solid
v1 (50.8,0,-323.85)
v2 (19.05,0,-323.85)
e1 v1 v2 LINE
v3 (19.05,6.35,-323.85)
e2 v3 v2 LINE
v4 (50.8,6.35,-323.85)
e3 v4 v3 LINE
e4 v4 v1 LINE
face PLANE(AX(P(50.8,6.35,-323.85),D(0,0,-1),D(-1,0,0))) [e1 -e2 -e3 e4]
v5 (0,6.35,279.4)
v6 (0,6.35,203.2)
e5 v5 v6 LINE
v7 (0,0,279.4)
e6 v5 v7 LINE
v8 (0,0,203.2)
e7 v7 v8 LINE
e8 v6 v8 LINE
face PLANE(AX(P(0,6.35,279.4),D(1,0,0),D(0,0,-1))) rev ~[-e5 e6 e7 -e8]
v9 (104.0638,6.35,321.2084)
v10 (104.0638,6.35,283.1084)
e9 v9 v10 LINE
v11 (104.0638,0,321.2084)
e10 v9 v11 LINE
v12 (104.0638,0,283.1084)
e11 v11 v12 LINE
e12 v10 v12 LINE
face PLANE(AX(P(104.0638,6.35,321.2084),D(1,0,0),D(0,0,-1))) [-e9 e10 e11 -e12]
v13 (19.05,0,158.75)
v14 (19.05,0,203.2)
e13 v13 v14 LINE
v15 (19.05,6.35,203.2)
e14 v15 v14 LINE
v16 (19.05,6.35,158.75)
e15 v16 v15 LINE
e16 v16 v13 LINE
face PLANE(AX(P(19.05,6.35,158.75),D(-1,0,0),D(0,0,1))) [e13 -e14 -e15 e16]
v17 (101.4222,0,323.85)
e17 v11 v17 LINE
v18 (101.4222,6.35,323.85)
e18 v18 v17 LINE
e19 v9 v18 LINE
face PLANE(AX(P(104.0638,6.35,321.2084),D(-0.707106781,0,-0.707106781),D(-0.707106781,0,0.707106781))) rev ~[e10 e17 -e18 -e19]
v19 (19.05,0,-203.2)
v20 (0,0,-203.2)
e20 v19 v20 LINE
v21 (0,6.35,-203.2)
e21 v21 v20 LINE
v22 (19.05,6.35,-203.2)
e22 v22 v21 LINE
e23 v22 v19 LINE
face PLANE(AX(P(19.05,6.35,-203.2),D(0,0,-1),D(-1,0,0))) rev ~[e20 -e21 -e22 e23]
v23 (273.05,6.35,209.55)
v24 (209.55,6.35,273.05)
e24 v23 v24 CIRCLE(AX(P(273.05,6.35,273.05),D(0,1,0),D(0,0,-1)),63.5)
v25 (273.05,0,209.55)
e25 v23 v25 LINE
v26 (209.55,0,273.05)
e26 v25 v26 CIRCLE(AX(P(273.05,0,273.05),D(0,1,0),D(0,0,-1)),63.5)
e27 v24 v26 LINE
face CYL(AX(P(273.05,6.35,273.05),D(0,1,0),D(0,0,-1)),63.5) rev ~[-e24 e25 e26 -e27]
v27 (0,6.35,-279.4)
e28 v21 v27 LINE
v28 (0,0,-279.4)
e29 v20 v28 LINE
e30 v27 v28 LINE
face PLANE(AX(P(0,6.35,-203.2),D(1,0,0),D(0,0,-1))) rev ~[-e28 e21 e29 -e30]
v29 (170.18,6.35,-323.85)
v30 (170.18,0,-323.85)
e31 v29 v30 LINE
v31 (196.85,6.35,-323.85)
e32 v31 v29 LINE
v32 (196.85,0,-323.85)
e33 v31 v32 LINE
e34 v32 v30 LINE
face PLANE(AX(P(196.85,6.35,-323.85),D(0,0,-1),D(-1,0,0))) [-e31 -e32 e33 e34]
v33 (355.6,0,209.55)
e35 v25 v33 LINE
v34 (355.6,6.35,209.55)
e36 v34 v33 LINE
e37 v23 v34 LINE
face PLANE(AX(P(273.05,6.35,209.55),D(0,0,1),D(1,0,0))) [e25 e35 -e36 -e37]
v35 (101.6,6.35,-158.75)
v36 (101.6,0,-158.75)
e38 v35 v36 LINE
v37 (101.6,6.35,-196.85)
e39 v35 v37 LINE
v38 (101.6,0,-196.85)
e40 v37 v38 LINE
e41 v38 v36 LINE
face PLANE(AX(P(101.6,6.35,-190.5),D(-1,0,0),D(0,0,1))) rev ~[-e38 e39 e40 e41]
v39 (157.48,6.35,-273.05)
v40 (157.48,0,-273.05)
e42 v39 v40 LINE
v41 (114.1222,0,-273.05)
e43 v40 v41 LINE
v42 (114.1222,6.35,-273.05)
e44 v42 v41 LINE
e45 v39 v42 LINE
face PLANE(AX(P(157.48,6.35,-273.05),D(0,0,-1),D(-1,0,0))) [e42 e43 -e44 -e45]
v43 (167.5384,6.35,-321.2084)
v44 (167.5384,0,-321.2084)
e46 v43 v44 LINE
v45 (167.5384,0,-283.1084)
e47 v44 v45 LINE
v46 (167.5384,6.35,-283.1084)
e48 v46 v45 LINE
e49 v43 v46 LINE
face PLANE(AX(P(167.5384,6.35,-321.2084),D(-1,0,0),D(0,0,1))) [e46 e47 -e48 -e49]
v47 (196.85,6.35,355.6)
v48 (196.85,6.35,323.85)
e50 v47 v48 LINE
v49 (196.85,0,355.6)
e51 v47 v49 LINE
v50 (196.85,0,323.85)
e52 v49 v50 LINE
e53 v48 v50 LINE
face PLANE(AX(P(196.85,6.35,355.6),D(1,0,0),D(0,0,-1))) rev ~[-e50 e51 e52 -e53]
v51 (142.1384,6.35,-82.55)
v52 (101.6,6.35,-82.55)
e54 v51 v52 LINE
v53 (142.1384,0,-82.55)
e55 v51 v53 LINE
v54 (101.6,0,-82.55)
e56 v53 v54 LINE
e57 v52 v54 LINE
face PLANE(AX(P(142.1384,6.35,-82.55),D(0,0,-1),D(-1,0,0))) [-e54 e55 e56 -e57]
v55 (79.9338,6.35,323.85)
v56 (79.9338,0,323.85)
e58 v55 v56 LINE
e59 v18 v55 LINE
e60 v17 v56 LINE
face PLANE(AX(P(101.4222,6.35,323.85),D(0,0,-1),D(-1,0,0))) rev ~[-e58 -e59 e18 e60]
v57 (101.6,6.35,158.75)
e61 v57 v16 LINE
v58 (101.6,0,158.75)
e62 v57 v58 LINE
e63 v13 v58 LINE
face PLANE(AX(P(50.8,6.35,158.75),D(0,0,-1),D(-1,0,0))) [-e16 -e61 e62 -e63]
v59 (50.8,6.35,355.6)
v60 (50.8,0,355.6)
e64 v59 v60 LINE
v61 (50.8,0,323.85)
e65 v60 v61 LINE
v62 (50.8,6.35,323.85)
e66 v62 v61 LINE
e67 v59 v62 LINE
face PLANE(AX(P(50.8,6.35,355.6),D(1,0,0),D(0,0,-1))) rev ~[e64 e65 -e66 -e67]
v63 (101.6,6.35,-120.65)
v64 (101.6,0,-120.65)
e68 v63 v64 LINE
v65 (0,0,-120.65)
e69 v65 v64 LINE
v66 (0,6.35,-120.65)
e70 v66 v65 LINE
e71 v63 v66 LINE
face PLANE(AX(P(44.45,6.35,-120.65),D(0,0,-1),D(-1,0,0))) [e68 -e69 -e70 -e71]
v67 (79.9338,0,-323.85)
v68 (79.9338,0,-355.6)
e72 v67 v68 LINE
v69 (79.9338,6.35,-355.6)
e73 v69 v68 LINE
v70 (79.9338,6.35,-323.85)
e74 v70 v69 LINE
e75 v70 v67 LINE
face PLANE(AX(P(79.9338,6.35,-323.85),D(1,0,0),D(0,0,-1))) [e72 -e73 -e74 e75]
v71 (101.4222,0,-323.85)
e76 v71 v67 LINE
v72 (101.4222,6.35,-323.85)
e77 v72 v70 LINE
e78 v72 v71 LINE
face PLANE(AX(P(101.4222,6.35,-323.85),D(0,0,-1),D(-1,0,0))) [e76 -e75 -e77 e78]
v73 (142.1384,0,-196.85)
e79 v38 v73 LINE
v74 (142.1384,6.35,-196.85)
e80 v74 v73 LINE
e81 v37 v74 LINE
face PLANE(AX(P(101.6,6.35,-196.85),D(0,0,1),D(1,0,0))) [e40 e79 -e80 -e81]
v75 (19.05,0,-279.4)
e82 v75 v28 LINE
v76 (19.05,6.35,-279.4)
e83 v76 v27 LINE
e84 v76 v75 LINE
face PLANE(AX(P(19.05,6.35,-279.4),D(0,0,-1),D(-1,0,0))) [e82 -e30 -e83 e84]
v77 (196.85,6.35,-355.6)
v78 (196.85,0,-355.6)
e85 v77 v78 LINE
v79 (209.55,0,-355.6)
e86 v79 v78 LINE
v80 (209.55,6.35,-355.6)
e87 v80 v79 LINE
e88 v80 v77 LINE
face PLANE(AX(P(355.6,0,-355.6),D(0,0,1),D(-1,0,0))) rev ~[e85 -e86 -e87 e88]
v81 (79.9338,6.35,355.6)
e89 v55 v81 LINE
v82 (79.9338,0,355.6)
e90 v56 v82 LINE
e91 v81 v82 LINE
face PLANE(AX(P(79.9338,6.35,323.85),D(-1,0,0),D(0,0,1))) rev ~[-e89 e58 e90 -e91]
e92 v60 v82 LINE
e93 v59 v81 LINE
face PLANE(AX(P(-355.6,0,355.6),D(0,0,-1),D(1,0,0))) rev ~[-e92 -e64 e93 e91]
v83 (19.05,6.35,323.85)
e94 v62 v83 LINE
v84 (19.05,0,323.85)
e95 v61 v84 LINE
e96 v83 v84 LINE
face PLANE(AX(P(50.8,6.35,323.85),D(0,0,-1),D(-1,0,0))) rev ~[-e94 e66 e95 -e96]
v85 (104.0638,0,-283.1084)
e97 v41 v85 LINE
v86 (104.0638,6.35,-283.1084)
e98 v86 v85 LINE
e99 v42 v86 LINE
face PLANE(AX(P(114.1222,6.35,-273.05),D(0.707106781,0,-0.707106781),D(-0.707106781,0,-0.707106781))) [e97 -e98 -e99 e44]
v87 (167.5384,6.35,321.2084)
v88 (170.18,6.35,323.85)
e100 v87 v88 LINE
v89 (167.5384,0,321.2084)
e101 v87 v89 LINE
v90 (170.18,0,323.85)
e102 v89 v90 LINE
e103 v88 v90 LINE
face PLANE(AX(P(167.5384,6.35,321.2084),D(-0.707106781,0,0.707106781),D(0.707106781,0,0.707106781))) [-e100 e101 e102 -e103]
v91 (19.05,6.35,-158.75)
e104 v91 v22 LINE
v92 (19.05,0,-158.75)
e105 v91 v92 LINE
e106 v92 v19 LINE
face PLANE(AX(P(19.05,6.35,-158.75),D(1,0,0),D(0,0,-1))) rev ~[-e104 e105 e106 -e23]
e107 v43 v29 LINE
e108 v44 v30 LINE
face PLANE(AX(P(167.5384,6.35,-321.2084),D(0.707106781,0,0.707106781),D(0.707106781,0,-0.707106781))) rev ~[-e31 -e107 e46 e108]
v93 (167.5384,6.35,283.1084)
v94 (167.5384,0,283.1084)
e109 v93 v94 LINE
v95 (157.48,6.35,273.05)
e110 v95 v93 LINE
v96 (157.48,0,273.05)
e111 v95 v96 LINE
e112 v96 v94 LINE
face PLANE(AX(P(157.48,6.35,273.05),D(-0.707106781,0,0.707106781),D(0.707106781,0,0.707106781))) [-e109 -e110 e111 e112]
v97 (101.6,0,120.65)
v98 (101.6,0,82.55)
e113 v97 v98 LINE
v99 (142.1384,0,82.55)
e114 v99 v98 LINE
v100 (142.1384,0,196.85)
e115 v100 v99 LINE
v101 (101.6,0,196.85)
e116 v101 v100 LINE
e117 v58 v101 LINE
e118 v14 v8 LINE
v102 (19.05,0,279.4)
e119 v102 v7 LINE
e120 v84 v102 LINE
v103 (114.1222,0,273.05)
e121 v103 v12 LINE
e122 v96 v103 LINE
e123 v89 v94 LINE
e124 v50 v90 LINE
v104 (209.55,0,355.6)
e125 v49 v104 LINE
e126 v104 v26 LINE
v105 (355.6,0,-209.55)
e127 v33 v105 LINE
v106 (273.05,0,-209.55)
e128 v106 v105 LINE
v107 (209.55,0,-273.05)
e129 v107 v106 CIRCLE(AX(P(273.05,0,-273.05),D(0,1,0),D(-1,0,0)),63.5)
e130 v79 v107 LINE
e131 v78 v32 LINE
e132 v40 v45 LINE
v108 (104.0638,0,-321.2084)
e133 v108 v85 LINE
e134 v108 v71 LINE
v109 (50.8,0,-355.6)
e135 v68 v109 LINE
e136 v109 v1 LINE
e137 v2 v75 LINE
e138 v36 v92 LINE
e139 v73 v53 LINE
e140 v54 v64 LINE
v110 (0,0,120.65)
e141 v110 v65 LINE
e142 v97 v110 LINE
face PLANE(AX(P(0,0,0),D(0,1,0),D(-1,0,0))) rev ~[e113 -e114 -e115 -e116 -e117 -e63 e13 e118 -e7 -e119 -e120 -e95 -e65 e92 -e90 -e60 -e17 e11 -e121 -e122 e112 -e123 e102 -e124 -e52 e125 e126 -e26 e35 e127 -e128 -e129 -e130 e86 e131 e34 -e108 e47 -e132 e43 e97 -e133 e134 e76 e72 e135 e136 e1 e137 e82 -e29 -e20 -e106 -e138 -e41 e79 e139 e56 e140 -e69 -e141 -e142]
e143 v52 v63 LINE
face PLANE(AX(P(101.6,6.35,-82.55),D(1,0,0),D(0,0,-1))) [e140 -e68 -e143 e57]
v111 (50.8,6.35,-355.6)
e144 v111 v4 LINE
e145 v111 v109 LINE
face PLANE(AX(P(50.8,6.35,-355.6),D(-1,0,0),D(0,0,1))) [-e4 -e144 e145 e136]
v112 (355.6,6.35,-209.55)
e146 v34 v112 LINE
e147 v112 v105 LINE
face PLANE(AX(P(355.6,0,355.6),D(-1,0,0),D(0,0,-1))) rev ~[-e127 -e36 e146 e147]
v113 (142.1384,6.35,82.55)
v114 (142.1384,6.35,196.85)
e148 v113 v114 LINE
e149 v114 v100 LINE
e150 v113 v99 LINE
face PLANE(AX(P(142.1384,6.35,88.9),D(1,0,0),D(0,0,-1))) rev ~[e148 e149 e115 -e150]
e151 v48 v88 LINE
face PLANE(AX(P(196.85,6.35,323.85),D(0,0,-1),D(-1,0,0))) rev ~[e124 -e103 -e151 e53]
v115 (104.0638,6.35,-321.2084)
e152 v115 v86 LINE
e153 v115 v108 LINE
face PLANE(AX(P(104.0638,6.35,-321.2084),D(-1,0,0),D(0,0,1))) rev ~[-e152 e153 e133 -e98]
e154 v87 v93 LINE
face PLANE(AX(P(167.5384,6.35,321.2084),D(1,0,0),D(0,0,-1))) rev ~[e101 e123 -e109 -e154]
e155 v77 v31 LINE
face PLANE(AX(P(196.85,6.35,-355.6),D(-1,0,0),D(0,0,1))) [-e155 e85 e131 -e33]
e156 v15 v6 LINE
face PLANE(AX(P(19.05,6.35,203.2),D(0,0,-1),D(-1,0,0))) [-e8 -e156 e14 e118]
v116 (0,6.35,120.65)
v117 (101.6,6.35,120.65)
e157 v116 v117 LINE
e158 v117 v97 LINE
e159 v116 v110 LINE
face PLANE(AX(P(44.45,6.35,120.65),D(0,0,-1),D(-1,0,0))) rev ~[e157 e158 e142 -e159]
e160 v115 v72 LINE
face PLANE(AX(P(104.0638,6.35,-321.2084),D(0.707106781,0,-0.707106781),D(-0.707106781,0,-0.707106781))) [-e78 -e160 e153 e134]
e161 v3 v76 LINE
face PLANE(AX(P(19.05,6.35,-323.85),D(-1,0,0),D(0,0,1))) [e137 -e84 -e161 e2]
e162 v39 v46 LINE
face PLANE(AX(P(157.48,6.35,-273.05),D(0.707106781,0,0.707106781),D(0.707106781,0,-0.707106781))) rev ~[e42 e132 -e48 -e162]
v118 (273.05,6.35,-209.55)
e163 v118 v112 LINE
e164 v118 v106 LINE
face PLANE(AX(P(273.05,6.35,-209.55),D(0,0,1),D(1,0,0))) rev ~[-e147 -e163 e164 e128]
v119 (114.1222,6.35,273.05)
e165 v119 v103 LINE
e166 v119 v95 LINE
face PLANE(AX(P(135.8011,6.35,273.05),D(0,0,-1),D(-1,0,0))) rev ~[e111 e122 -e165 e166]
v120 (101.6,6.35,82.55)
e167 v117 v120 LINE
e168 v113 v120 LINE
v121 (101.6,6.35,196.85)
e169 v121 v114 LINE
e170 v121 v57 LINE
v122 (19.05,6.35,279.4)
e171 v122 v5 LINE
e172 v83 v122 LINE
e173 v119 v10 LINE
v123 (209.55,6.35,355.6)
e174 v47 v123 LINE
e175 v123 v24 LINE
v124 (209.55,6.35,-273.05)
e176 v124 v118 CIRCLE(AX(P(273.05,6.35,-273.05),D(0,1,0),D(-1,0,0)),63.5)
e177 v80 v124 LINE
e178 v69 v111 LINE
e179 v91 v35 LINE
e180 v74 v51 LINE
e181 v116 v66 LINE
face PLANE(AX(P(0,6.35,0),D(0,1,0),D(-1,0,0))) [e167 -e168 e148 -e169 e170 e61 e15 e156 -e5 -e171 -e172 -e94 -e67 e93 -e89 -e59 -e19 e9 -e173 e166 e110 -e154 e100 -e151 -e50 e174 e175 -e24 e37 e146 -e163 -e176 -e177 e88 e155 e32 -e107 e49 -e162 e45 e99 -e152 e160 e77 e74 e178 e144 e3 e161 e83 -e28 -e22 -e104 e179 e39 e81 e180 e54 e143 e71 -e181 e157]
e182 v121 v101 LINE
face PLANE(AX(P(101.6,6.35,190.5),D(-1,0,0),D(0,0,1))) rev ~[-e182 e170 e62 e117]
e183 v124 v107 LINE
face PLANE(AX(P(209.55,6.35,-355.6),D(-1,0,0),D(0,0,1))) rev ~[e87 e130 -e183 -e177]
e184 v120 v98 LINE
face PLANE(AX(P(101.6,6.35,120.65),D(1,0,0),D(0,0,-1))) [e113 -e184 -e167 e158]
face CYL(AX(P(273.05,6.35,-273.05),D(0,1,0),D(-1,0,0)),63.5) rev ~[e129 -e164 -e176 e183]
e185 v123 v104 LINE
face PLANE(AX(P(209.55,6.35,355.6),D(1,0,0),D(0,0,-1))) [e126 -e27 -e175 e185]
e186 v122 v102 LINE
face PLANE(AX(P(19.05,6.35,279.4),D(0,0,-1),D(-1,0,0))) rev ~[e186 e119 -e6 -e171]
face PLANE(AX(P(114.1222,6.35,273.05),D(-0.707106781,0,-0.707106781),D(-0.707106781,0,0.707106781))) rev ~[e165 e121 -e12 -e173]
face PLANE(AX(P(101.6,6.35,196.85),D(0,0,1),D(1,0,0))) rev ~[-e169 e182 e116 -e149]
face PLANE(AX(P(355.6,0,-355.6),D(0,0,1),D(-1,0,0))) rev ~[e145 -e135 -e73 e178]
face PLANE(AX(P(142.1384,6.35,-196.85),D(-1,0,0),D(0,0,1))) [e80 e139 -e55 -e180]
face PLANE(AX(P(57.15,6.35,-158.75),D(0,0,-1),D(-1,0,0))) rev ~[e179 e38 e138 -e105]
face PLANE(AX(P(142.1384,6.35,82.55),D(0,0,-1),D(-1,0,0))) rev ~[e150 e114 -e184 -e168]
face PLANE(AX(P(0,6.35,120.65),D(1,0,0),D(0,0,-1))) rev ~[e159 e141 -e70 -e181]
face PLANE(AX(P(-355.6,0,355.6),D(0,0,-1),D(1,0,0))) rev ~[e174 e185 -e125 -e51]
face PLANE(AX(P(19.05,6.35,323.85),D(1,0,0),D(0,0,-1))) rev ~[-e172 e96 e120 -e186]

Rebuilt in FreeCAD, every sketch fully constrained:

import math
import FreeCAD as App
import Part
import Sketcher
from FreeCAD import Vector
Q = App.Units.Quantity


def add_polygon(sketch, points):
    """Adds a closed chain of lines whose ends are joined by coincident constraints."""
    first, n = sketch.GeometryCount, len(points)
    for a, b in zip(points, points[1:] + points[:1]):
        sketch.addGeometry(Part.LineSegment(App.Vector(*a, 0), App.Vector(*b, 0)), False)
    for i in range(n):
        sketch.addConstraint(Sketcher.Constraint("Coincident", first + i, 2, first + (i + 1) % n, 1))

doc = App.newDocument("Part")
body = doc.addObject("PartDesign::Body", "Body")

# Sketch on XZ plane
sketch1 = body.newObject("Sketcher::SketchObject", "Sketch")
sketch1.AttachmentSupport = (doc.getObject("XZ_Plane"), [""])
sketch1.MapMode = "FlatFace"
add_polygon(sketch1, [(-356, -356), (-356, 356), (356, 356), (356, -356)])  # lines 0-3
sketch1.addConstraint([
    Sketcher.Constraint("Vertical", 0),
    Sketcher.Constraint("Horizontal", 1),
    Sketcher.Constraint("Vertical", 2),
    Sketcher.Constraint("Horizontal", 3),
    Sketcher.Constraint("Symmetric", 0, 2, 2, 2, -1, 1),
    Sketcher.Constraint("Equal", 3, 0),
    Sketcher.Constraint("DistanceX", 1, 1, 1, 2, Q("28 in")),
])
pad1 = body.newObject("PartDesign::Pad", "Pad")
pad1.Profile = sketch1
pad1.Length = Q("0.25 in")
pad1.Reversed = True

# Sketch on XZ plane
sketch2 = body.newObject("Sketcher::SketchObject", "Sketch001")
sketch2.AttachmentSupport = (doc.getObject("XZ_Plane"), [""])
sketch2.MapMode = "FlatFace"
sketch2.AttachmentOffset = App.Placement(Vector(0, 0, -0.25 * 25.4), App.Rotation())
add_polygon(sketch2, [(279, 356), (356, 356), (356, 279), (324, 279), (324, 324), (279, 324)])  # lines 0-5
add_polygon(sketch2, [(324, -279), (356, -279), (356, -356), (279, -356), (279, -324), (324, -324)])  # lines 6-11
add_polygon(sketch2, [(-356, 356), (-279, 356), (-279, 324), (-324, 324), (-324, 279), (-356, 279)])  # lines 12-17
add_polygon(sketch2, [(-279, -324), (-279, -356), (-356, -356), (-356, -279), (-324, -279), (-324, -324)])  # lines 18-23
sketch2.addConstraint([
    Sketcher.Constraint("Horizontal", 0),
    Sketcher.Constraint("Vertical", 1),
    Sketcher.Constraint("Horizontal", 2),
    Sketcher.Constraint("Vertical", 3),
    Sketcher.Constraint("Horizontal", 4),
    Sketcher.Constraint("Vertical", 5),
    Sketcher.Constraint("Horizontal", 6),
    Sketcher.Constraint("Vertical", 7),
    Sketcher.Constraint("Horizontal", 8),
    Sketcher.Constraint("Vertical", 9),
    Sketcher.Constraint("Horizontal", 10),
    Sketcher.Constraint("Vertical", 11),
    Sketcher.Constraint("Horizontal", 12),
    Sketcher.Constraint("Vertical", 13),
    Sketcher.Constraint("Horizontal", 14),
    Sketcher.Constraint("Vertical", 15),
    Sketcher.Constraint("Horizontal", 16),
    Sketcher.Constraint("Vertical", 17),
    Sketcher.Constraint("Vertical", 18),
    Sketcher.Constraint("Horizontal", 19),
    Sketcher.Constraint("Vertical", 20),
    Sketcher.Constraint("Horizontal", 21),
    Sketcher.Constraint("Vertical", 22),
    Sketcher.Constraint("Horizontal", 23),
    Sketcher.Constraint("Symmetric", 8, 2, 12, 2, -1, 1),
    Sketcher.Constraint("Symmetric", 10, 2, 14, 2, -1, 1),
    Sketcher.Constraint("Symmetric", 6, 2, 16, 2, -1, 1),
    Sketcher.Constraint("Symmetric", 5, 2, 18, 2, -1, 1),
    Sketcher.Constraint("Symmetric", 1, 2, 20, 2, -1, 1),
    Sketcher.Constraint("Symmetric", 3, 2, 22, 2, -1, 1),
    Sketcher.Constraint("Symmetric", 5, 2, 12, 2, -2),
    Sketcher.Constraint("Symmetric", 3, 2, 14, 2, -2),
    Sketcher.Constraint("Symmetric", 1, 2, 16, 2, -2),
    Sketcher.Constraint("Equal", 19, 1),
    Sketcher.Constraint("Equal", 23, 3),
    Sketcher.Constraint("DistanceX", 0, 1, 0, 2, Q("3 in")),
    Sketcher.Constraint("DistanceX", 2, 2, 2, 1, Q("1.25 in")),
    Sketcher.Constraint("DistanceX", -1, 1, 0, 2, Q("14 in")),
    Sketcher.Constraint("DistanceY", -1, 1, 0, 2, Q("14 in")),
])
pocket1 = body.newObject("PartDesign::Pocket", "Pocket")
pocket1.Profile = sketch2
pocket1.Length = Q("0.25 in")
pocket1.Reversed = True

# Sketch on XZ plane
sketch3 = body.newObject("Sketcher::SketchObject", "Sketch002")
sketch3.AttachmentSupport = (doc.getObject("XZ_Plane"), [""])
sketch3.MapMode = "FlatFace"
sketch3.AttachmentOffset = App.Placement(Vector(0, 0, -0.25 * 25.4), App.Rotation())
add_polygon(sketch3, [(-356, 89), (-356, 190), (-324, 190), (-324, 159), (-279, 159), (-279, 121), (-324, 121), (-324, 89)])  # lines 0-7
add_polygon(sketch3, [(-324, -190), (-356, -190), (-356, -89), (-324, -89), (-324, -121), (-279, -121), (-279, -159), (-324, -159)])  # lines 8-15
sketch3.addConstraint([
    Sketcher.Constraint("Vertical", 0),
    Sketcher.Constraint("Horizontal", 1),
    Sketcher.Constraint("Vertical", 2),
    Sketcher.Constraint("Horizontal", 3),
    Sketcher.Constraint("Vertical", 4),
    Sketcher.Constraint("Horizontal", 5),
    Sketcher.Constraint("Vertical", 6),
    Sketcher.Constraint("Horizontal", 7),
    Sketcher.Constraint("Horizontal", 8),
    Sketcher.Constraint("Vertical", 9),
    Sketcher.Constraint("Horizontal", 10),
    Sketcher.Constraint("Vertical", 11),
    Sketcher.Constraint("Horizontal", 12),
    Sketcher.Constraint("Vertical", 13),
    Sketcher.Constraint("Horizontal", 14),
    Sketcher.Constraint("Vertical", 15),
    Sketcher.Constraint("Symmetric", 0, 2, 8, 2, -1),
    Sketcher.Constraint("Symmetric", 6, 2, 10, 2, -1),
    Sketcher.Constraint("Symmetric", 4, 2, 12, 2, -1),
    Sketcher.Constraint("Symmetric", 2, 2, 14, 2, -1),
    Sketcher.Constraint("Vertical", 2, 2, 5, 2),
    Sketcher.Constraint("Equal", 10, 2),
    Sketcher.Constraint("Equal", 2, 6),
    Sketcher.Constraint("DistanceY", 4, 2, 4, 1, Q("1.5 in")),
    Sketcher.Constraint("DistanceX", 1, 1, 1, 2, Q("1.25 in")),
    Sketcher.Constraint("DistanceX", 3, 1, 3, 2, Q("1.75 in")),
    Sketcher.Constraint("DistanceX", 0, 2, -1, 1, Q("14 in")),
    Sketcher.Constraint("DistanceY", 8, 2, 7, 2, Q("11 in")),
])
pocket2 = body.newObject("PartDesign::Pocket", "Pocket001")
pocket2.Profile = sketch3
pocket2.Length = Q("0.25 in")
pocket2.Reversed = True

# Sketch on XZ plane
sketch4 = body.newObject("Sketcher::SketchObject", "Sketch003")
sketch4.AttachmentSupport = (doc.getObject("XZ_Plane"), [""])
sketch4.MapMode = "FlatFace"
sketch4.AttachmentOffset = App.Placement(Vector(0, 0, -0.25 * 25.4), App.Rotation())
sketch4.addGeometry([
    Part.LineSegment(Vector(-356, -210, 0), Vector(-273, -210, 0)),  # 0
    Part.ArcOfCircle(Part.Circle(Vector(-273, -273, 0), Vector(0, 0, 1), 64), math.radians(0), math.radians(90)),  # 1
    Part.LineSegment(Vector(-210, -273, 0), Vector(-210, -356, 0)),  # 2
    Part.LineSegment(Vector(-210, -356, 0), Vector(-356, -356, 0)),  # 3
    Part.LineSegment(Vector(-356, -356, 0), Vector(-356, -210, 0)),  # 4
    Part.LineSegment(Vector(-273, 210, 0), Vector(-356, 210, 0)),  # 5
    Part.LineSegment(Vector(-356, 210, 0), Vector(-356, 356, 0)),  # 6
    Part.LineSegment(Vector(-356, 356, 0), Vector(-210, 356, 0)),  # 7
    Part.LineSegment(Vector(-210, 356, 0), Vector(-210, 273, 0)),  # 8
    Part.ArcOfCircle(Part.Circle(Vector(-273, 273, 0), Vector(0, 0, 1), 64), math.radians(-90), math.radians(0)),  # 9
    Part.LineSegment(Vector(210, -356, 0), Vector(210, -273, 0)),  # 10
    Part.ArcOfCircle(Part.Circle(Vector(273, -273, 0), Vector(0, 0, 1), 64), math.radians(90), math.radians(180)),  # 11
    Part.LineSegment(Vector(273, -210, 0), Vector(356, -210, 0)),  # 12
    Part.LineSegment(Vector(356, -210, 0), Vector(356, -356, 0)),  # 13
    Part.LineSegment(Vector(356, -356, 0), Vector(210, -356, 0)),  # 14
    Part.LineSegment(Vector(210, 273, 0), Vector(210, 356, 0)),  # 15
    Part.LineSegment(Vector(210, 356, 0), Vector(356, 356, 0)),  # 16
    Part.LineSegment(Vector(356, 356, 0), Vector(356, 210, 0)),  # 17
    Part.LineSegment(Vector(356, 210, 0), Vector(273, 210, 0)),  # 18
    Part.ArcOfCircle(Part.Circle(Vector(273, 273, 0), Vector(0, 0, 1), 64), math.radians(180), math.radians(270)),  # 19
], False)
sketch4.addConstraint([
    Sketcher.Constraint("Tangent", 0, 2, 1, 2),
    Sketcher.Constraint("Tangent", 1, 1, 2, 1),
    Sketcher.Constraint("Coincident", 2, 2, 3, 1),
    Sketcher.Constraint("Coincident", 3, 2, 4, 1),
    Sketcher.Constraint("Coincident", 4, 2, 0, 1),
    Sketcher.Constraint("Coincident", 5, 2, 6, 1),
    Sketcher.Constraint("Coincident", 6, 2, 7, 1),
    Sketcher.Constraint("Coincident", 7, 2, 8, 1),
    Sketcher.Constraint("Tangent", 8, 2, 9, 2),
    Sketcher.Constraint("Tangent", 9, 1, 5, 1),
    Sketcher.Constraint("Tangent", 10, 2, 11, 2),
    Sketcher.Constraint("Tangent", 11, 1, 12, 1),
    Sketcher.Constraint("Coincident", 12, 2, 13, 1),
    Sketcher.Constraint("Coincident", 13, 2, 14, 1),
    Sketcher.Constraint("Coincident", 14, 2, 10, 1),
    Sketcher.Constraint("Coincident", 15, 2, 16, 1),
    Sketcher.Constraint("Coincident", 16, 2, 17, 1),
    Sketcher.Constraint("Coincident", 17, 2, 18, 1),
    Sketcher.Constraint("Tangent", 18, 2, 19, 2),
    Sketcher.Constraint("Tangent", 19, 1, 15, 1),
    Sketcher.Constraint("Horizontal", 0),
    Sketcher.Constraint("Vertical", 2),
    Sketcher.Constraint("Horizontal", 3),
    Sketcher.Constraint("Vertical", 4),
    Sketcher.Constraint("Horizontal", 5),
    Sketcher.Constraint("Vertical", 6),
    Sketcher.Constraint("Horizontal", 7),
    Sketcher.Constraint("Vertical", 8),
    Sketcher.Constraint("Vertical", 10),
    Sketcher.Constraint("Horizontal", 12),
    Sketcher.Constraint("Vertical", 13),
    Sketcher.Constraint("Horizontal", 14),
    Sketcher.Constraint("Vertical", 15),
    Sketcher.Constraint("Horizontal", 16),
    Sketcher.Constraint("Vertical", 17),
    Sketcher.Constraint("Horizontal", 18),
    Sketcher.Constraint("Equal", 1, 9),
    Sketcher.Constraint("Equal", 9, 11),
    Sketcher.Constraint("Equal", 11, 19),
    Sketcher.Constraint("Symmetric", 9, 3, 11, 3, -1, 1),
    Sketcher.Constraint("Symmetric", 1, 3, 19, 3, -1, 1),
    Sketcher.Constraint("Symmetric", 6, 2, 13, 2, -1, 1),
    Sketcher.Constraint("Symmetric", 3, 2, 16, 2, -1, 1),
    Sketcher.Constraint("Symmetric", 1, 3, 11, 3, -2),
    Sketcher.Constraint("Symmetric", 3, 2, 13, 2, -2),
    Sketcher.Constraint("Equal", 18, 2),
    Sketcher.Constraint("Radius", 1, Q("2.5 in")),
    Sketcher.Constraint("DistanceX", 3, 2, 3, 1, Q("5.75 in")),
    Sketcher.Constraint("DistanceY", 2, 2, -1, 1, Q("14 in")),
    Sketcher.Constraint("DistanceX", 3, 2, -1, 1, Q("14 in")),
])
pocket3 = body.newObject("PartDesign::Pocket", "Pocket002")
pocket3.Profile = sketch4
pocket3.Length = Q("0.25 in")
pocket3.Reversed = True

# Sketch on XZ plane
sketch5 = body.newObject("Sketcher::SketchObject", "Sketch004")
sketch5.AttachmentSupport = (doc.getObject("XZ_Plane"), [""])
sketch5.MapMode = "FlatFace"
sketch5.AttachmentOffset = App.Placement(Vector(0, 0, -0.25 * 25.4), App.Rotation())
add_polygon(sketch5, [(196.8, -355.6), (79.9, -355.6), (79.9, -323.9), (101.4, -323.9), (104.1, -321.2), (104.1, -283.1), (114.1, -273.1), (157.5, -273.1), (167.5, -283.1), (167.5, -321.2), (170.2, -323.9), (196.8, -323.9)])  # lines 0-11
add_polygon(sketch5, [(79.9, 355.6), (196.8, 355.6), (196.8, 323.9), (170.2, 323.9), (167.5, 321.2), (167.5, 283.1), (157.5, 273.1), (114.1, 273.1), (104.1, 283.1), (104.1, 321.2), (101.4, 323.9), (79.9, 323.9)])  # lines 12-23
sketch5.addConstraint([
    Sketcher.Constraint("Horizontal", 0),
    Sketcher.Constraint("Vertical", 1),
    Sketcher.Constraint("Horizontal", 2),
    Sketcher.Constraint("Vertical", 4),
    Sketcher.Constraint("Horizontal", 6),
    Sketcher.Constraint("Vertical", 8),
    Sketcher.Constraint("Horizontal", 10),
    Sketcher.Constraint("Vertical", 11),
    Sketcher.Constraint("Horizontal", 12),
    Sketcher.Constraint("Vertical", 13),
    Sketcher.Constraint("Horizontal", 14),
    Sketcher.Constraint("Vertical", 16),
    Sketcher.Constraint("Horizontal", 18),
    Sketcher.Constraint("Vertical", 20),
    Sketcher.Constraint("Horizontal", 22),
    Sketcher.Constraint("Vertical", 23),
    Sketcher.Constraint("Symmetric", 11, 2, 12, 2, -1),
    Sketcher.Constraint("Symmetric", 9, 2, 14, 2, -1),
    Sketcher.Constraint("Symmetric", 8, 2, 15, 2, -1),
    Sketcher.Constraint("Symmetric", 6, 2, 17, 2, -1),
    Sketcher.Constraint("Symmetric", 4, 2, 19, 2, -1),
    Sketcher.Constraint("Symmetric", 2, 2, 21, 2, -1),
    Sketcher.Constraint("Parallel", 3, 5),
    Sketcher.Constraint("Perpendicular", 5, 7),
    Sketcher.Constraint("Parallel", 7, 9),
    Sketcher.Constraint("Perpendicular", 9, 15),
    Sketcher.Constraint("Parallel", 15, 17),
    Sketcher.Constraint("Perpendicular", 17, 19),
    Sketcher.Constraint("Parallel", 19, 21),
    Sketcher.Constraint("Horizontal", 4, 2, 7, 2),
    Sketcher.Constraint("Horizontal", 3, 2, 8, 2),
    Sketcher.Constraint("Horizontal", 2, 2, 9, 2),
    Sketcher.Constraint("Vertical", 1, 2, 22, 2),
    Sketcher.Constraint("DistanceY", 4, 1, 4, 2, Q("1.5 in")),
    Sketcher.Constraint("DistanceX", 10, 1, 10, 2, Q("1.05 in")),
    Sketcher.Constraint("DistanceY", 1, 1, 1, 2, Q("1.25 in")),
    Sketcher.Constraint("DistanceX", 2, 1, 2, 2, Q("0.846 in")),
    Sketcher.Constraint("DistanceX", 6, 1, 6, 2, Q("1.707 in")),
    Sketcher.Constraint("DistanceY", 0, 2, -1, 1, Q("14 in")),
    Sketcher.Constraint("DistanceY", 2, 2, 5, 2, Q("2 in")),
    Sketcher.Constraint("DistanceX", -1, 1, 6, 2, Q("6.2 in")),
    Sketcher.Constraint("DistanceX", 1, 2, 3, 2, Q("0.95 in")),
])
pocket4 = body.newObject("PartDesign::Pocket", "Pocket003")
pocket4.Profile = sketch5
pocket4.Length = Q("22.6875 in")
pocket4.Reversed = True

# Sketch on XZ plane
sketch6 = body.newObject("Sketcher::SketchObject", "Sketch005")
sketch6.AttachmentSupport = (doc.getObject("XZ_Plane"), [""])
sketch6.MapMode = "FlatFace"
sketch6.AttachmentOffset = App.Placement(Vector(0, 0, -0.25 * 25.4), App.Rotation())
add_polygon(sketch6, [(44, -121), (102, -121), (102, -83), (142, -83), (142, -197), (102, -197), (102, -159), (44, -159)])  # lines 0-7
add_polygon(sketch6, [(102, 83), (102, 121), (44, 121), (44, 159), (102, 159), (102, 197), (142, 197), (142, 83)])  # lines 8-15
sketch6.addConstraint([
    Sketcher.Constraint("Horizontal", 0),
    Sketcher.Constraint("Vertical", 1),
    Sketcher.Constraint("Horizontal", 2),
    Sketcher.Constraint("Vertical", 3),
    Sketcher.Constraint("Horizontal", 4),
    Sketcher.Constraint("Vertical", 5),
    Sketcher.Constraint("Horizontal", 6),
    Sketcher.Constraint("Vertical", 7),
    Sketcher.Constraint("Vertical", 8),
    Sketcher.Constraint("Horizontal", 9),
    Sketcher.Constraint("Vertical", 10),
    Sketcher.Constraint("Horizontal", 11),
    Sketcher.Constraint("Vertical", 12),
    Sketcher.Constraint("Horizontal", 13),
    Sketcher.Constraint("Vertical", 14),
    Sketcher.Constraint("Horizontal", 15),
    Sketcher.Constraint("Symmetric", 0, 2, 8, 2, -1),
    Sketcher.Constraint("Symmetric", 6, 2, 10, 2, -1),
    Sketcher.Constraint("Symmetric", 4, 2, 12, 2, -1),
    Sketcher.Constraint("Symmetric", 2, 2, 14, 2, -1),
    Sketcher.Constraint("Vertical", 1, 2, 4, 2),
    Sketcher.Constraint("Equal", 1, 5),
    Sketcher.Constraint("Equal", 5, 7),
    Sketcher.Constraint("DistanceY", 1, 1, 1, 2, Q("1.5 in")),
    Sketcher.Constraint("DistanceX", -1, 1, 0, 2, Q("4 in")),
    Sketcher.Constraint("DistanceY", 1, 2, 8, 2, Q("8 in")),
    Sketcher.Constraint("DistanceX", 0, 1, 0, 2, Q("2.25 in")),
    Sketcher.Constraint("DistanceX", 2, 1, 2, 2, Q("1.596 in")),
])
pocket5 = body.newObject("PartDesign::Pocket", "Pocket004")
pocket5.Profile = sketch6
pocket5.Length = Q("14.375 in")
pocket5.Reversed = True

# Sketch on XZ plane
sketch7 = body.newObject("Sketcher::SketchObject", "Sketch006")
sketch7.AttachmentSupport = (doc.getObject("XZ_Plane"), [""])
sketch7.MapMode = "FlatFace"
sketch7.AttachmentOffset = App.Placement(Vector(0, 0, -0.25 * 25.4), App.Rotation())
add_polygon(sketch7, [(51, 159), (51, 127), (-51, 127), (-51, 159), (-19, 159), (-19, 203), (19, 203), (19, 159)])  # lines 0-7
add_polygon(sketch7, [(51, -159), (19, -159), (19, -203), (-19, -203), (-19, -159), (-51, -159), (-51, -127), (51, -127)])  # lines 8-15
add_polygon(sketch7, [(51, -324), (51, -356), (-51, -356), (-51, -324), (-19, -324), (-19, -279), (19, -279), (19, -324)])  # lines 16-23
add_polygon(sketch7, [(-76, -324), (-76, -356), (-178, -356), (-178, -324), (-146, -324), (-146, -279), (-108, -279), (-108, -324)])  # lines 24-31
add_polygon(sketch7, [(-51, 356), (51, 356), (51, 324), (19, 324), (19, 279), (-19, 279), (-19, 324), (-51, 324)])  # lines 32-39
add_polygon(sketch7, [(-178, 356), (-76, 356), (-76, 324), (-108, 324), (-108, 279), (-146, 279), (-146, 324), (-178, 324)])  # lines 40-47
add_polygon(sketch7, [(-108, 159), (-76, 159), (-76, 127), (-178, 127), (-178, 159), (-146, 159), (-146, 203), (-108, 203)])  # lines 48-55
add_polygon(sketch7, [(-76, -127), (-76, -159), (-108, -159), (-108, -203), (-146, -203), (-146, -159), (-178, -159), (-178, -127)])  # lines 56-63
sketch7.addConstraint([
    Sketcher.Constraint("Vertical", 0),
    Sketcher.Constraint("Horizontal", 1),
    Sketcher.Constraint("Vertical", 2),
    Sketcher.Constraint("Horizontal", 3),
    Sketcher.Constraint("Vertical", 4),
    Sketcher.Constraint("Horizontal", 5),
    Sketcher.Constraint("Vertical", 6),
    Sketcher.Constraint("Horizontal", 7),
    Sketcher.Constraint("Horizontal", 8),
    Sketcher.Constraint("Vertical", 9),
    Sketcher.Constraint("Horizontal", 10),
    Sketcher.Constraint("Vertical", 11),
    Sketcher.Constraint("Horizontal", 12),
    Sketcher.Constraint("Vertical", 13),
    Sketcher.Constraint("Horizontal", 14),
    Sketcher.Constraint("Vertical", 15),
    Sketcher.Constraint("Vertical", 16),
    Sketcher.Constraint("Horizontal", 17),
    Sketcher.Constraint("Vertical", 18),
    Sketcher.Constraint("Horizontal", 19),
    Sketcher.Constraint("Vertical", 20),
    Sketcher.Constraint("Horizontal", 21),
    Sketcher.Constraint("Vertical", 22),
    Sketcher.Constraint("Horizontal", 23),
    Sketcher.Constraint("Vertical", 24),
    Sketcher.Constraint("Horizontal", 25),
    Sketcher.Constraint("Vertical", 26),
    Sketcher.Constraint("Horizontal", 27),
    Sketcher.Constraint("Vertical", 28),
    Sketcher.Constraint("Horizontal", 29),
    Sketcher.Constraint("Vertical", 30),
    Sketcher.Constraint("Horizontal", 31),
    Sketcher.Constraint("Horizontal", 32),
    Sketcher.Constraint("Vertical", 33),
    Sketcher.Constraint("Horizontal", 34),
    Sketcher.Constraint("Vertical", 35),
    Sketcher.Constraint("Horizontal", 36),
    Sketcher.Constraint("Vertical", 37),
    Sketcher.Constraint("Horizontal", 38),
    Sketcher.Constraint("Vertical", 39),
    Sketcher.Constraint("Horizontal", 40),
    Sketcher.Constraint("Vertical", 41),
    Sketcher.Constraint("Horizontal", 42),
    Sketcher.Constraint("Vertical", 43),
    Sketcher.Constraint("Horizontal", 44),
    Sketcher.Constraint("Vertical", 45),
    Sketcher.Constraint("Horizontal", 46),
    Sketcher.Constraint("Vertical", 47),
    Sketcher.Constraint("Horizontal", 48),
    Sketcher.Constraint("Vertical", 49),
    Sketcher.Constraint("Horizontal", 50),
    Sketcher.Constraint("Vertical", 51),
    Sketcher.Constraint("Horizontal", 52),
    Sketcher.Constraint("Vertical", 53),
    Sketcher.Constraint("Horizontal", 54),
    Sketcher.Constraint("Vertical", 55),
    Sketcher.Constraint("Vertical", 56),
    Sketcher.Constraint("Horizontal", 57),
    Sketcher.Constraint("Vertical", 58),
    Sketcher.Constraint("Horizontal", 59),
    Sketcher.Constraint("Vertical", 60),
    Sketcher.Constraint("Horizontal", 61),
    Sketcher.Constraint("Vertical", 62),
    Sketcher.Constraint("Horizontal", 63),
    Sketcher.Constraint("Symmetric", 3, 2, 8, 2, -1, 1),
    Sketcher.Constraint("Symmetric", 5, 2, 10, 2, -1, 1),
    Sketcher.Constraint("Symmetric", 7, 2, 12, 2, -1, 1),
    Sketcher.Constraint("Symmetric", 1, 2, 14, 2, -1, 1),
    Sketcher.Constraint("Symmetric", 17, 2, 32, 2, -1, 1),
    Sketcher.Constraint("Symmetric", 19, 2, 34, 2, -1, 1),
    Sketcher.Constraint("Symmetric", 21, 2, 36, 2, -1, 1),
    Sketcher.Constraint("Symmetric", 23, 2, 38, 2, -1, 1),
    Sketcher.Constraint("Symmetric", 3, 2, 6, 2, -2),
    Sketcher.Constraint("Symmetric", 19, 2, 22, 2, -2),
    Sketcher.Constraint("Symmetric", 24, 2, 40, 2, -1),
    Sketcher.Constraint("Symmetric", 30, 2, 42, 2, -1),
    Sketcher.Constraint("Symmetric", 28, 2, 44, 2, -1),
    Sketcher.Constraint("Symmetric", 26, 2, 46, 2, -1),
    Sketcher.Constraint("Symmetric", 48, 2, 56, 2, -1),
    Sketcher.Constraint("Symmetric", 54, 2, 58, 2, -1),
    Sketcher.Constraint("Symmetric", 52, 2, 60, 2, -1),
    Sketcher.Constraint("Symmetric", 50, 2, 62, 2, -1),
    Sketcher.Constraint("Horizontal", 17, 2, 24, 2),
    Sketcher.Constraint("Horizontal", 23, 2, 26, 2),
    Sketcher.Constraint("Horizontal", 21, 2, 28, 2),
    Sketcher.Constraint("Horizontal", 27, 2, 30, 2),
    Sketcher.Constraint("Horizontal", 7, 2, 48, 2),
    Sketcher.Constraint("Horizontal", 1, 2, 49, 2),
    Sketcher.Constraint("Horizontal", 48, 2, 51, 2),
    Sketcher.Constraint("Horizontal", 5, 2, 53, 2),
    Sketcher.Constraint("Vertical", 2, 2, 12, 2),
    Sketcher.Constraint("Vertical", 15, 2, 16, 2),
    Sketcher.Constraint("Vertical", 13, 2, 17, 2),
    Sketcher.Constraint("Vertical", 11, 2, 19, 2),
    Sketcher.Constraint("Vertical", 41, 2, 48, 2),
    Sketcher.Constraint("Vertical", 47, 2, 50, 2),
    Sketcher.Constraint("Vertical", 45, 2, 52, 2),
    Sketcher.Constraint("Vertical", 43, 2, 54, 2),
    Sketcher.Constraint("Equal", 17, 25),
    Sketcher.Constraint("Equal", 23, 27),
    Sketcher.Constraint("Equal", 21, 29),
    Sketcher.Constraint("Equal", 61, 0),
    Sketcher.Constraint("Equal", 15, 16),
    Sketcher.Constraint("Equal", 11, 20),
    Sketcher.Constraint("DistanceX", 5, 1, 5, 2, Q("1.5 in")),
    Sketcher.Constraint("DistanceX", 3, 1, 3, 2, Q("1.25 in")),
    Sketcher.Constraint("DistanceY", 4, 1, 4, 2, Q("1.75 in")),
    Sketcher.Constraint("DistanceY", -1, 1, 0, 2, Q("5 in")),
    Sketcher.Constraint("DistanceY", 16, 2, -1, 1, Q("14 in")),
    Sketcher.Constraint("DistanceX", 24, 2, -1, 1, Q("3 in")),
])
pocket6 = body.newObject("PartDesign::Pocket", "Pocket005")
pocket6.Profile = sketch7
pocket6.Length = Q("14.375 in")
pocket6.Reversed = True

# Sketch on XZ plane
sketch8 = body.newObject("Sketcher::SketchObject", "Sketch007")
sketch8.AttachmentSupport = (doc.getObject("XZ_Plane"), [""])
sketch8.MapMode = "FlatFace"
sketch8.AttachmentOffset = App.Placement(Vector(0, 0, -0.25 * 25.4), App.Rotation())
add_polygon(sketch8, [(-178, 127), (44, 127), (44, 121), (-178, 121)])  # lines 0-3
add_polygon(sketch8, [(44, -127), (-178, -127), (-178, -121), (44, -121)])  # lines 4-7
sketch8.addConstraint([
    Sketcher.Constraint("Horizontal", 0),
    Sketcher.Constraint("Vertical", 1),
    Sketcher.Constraint("Horizontal", 2),
    Sketcher.Constraint("Vertical", 3),
    Sketcher.Constraint("Horizontal", 4),
    Sketcher.Constraint("Vertical", 5),
    Sketcher.Constraint("Horizontal", 6),
    Sketcher.Constraint("Vertical", 7),
    Sketcher.Constraint("Symmetric", 3, 2, 4, 2, -1),
    Sketcher.Constraint("Symmetric", 1, 2, 6, 2, -1),
    Sketcher.Constraint("DistanceY", -1, 1, 0, 2, Q("5 in")),
    Sketcher.Constraint("DistanceX", 2, 2, -1, 1, Q("7 in")),
    Sketcher.Constraint("DistanceX", 0, 1, 0, 2, Q("8.75 in")),
    Sketcher.Constraint("DistanceY", 1, 2, 1, 1, Q("0.25 in")),
])
pocket7 = body.newObject("PartDesign::Pocket", "Pocket006")
pocket7.Profile = sketch8
pocket7.Length = Q("1 in")
pocket7.Reversed = True

# Sketch on XZ plane
sketch9 = body.newObject("Sketcher::SketchObject", "Sketch008")
sketch9.AttachmentSupport = (doc.getObject("XZ_Plane"), [""])
sketch9.MapMode = "FlatFace"
sketch9.AttachmentOffset = App.Placement(Vector(0, 0, -0.25 * 25.4), App.Rotation())
sketch9.addGeometry([
    Part.LineSegment(Vector(-19, 279, 0), Vector(0, 279, 0)),  # 0
    Part.LineSegment(Vector(0, 279, 0), Vector(0, 203, 0)),  # 1
    Part.LineSegment(Vector(0, 203, 0), Vector(-19, 203, 0)),  # 2
    Part.LineSegment(Vector(-19, 203, 0), Vector(-19, 159, 0)),  # 3
    Part.LineSegment(Vector(-19, 159, 0), Vector(-51, 159, 0)),  # 4
    Part.LineSegment(Vector(-51, 159, 0), Vector(-51, 127, 0)),  # 5
    Part.LineSegment(Vector(-51, 127, 0), Vector(-76, 127, 0)),  # 6
    Part.LineSegment(Vector(-76, 127, 0), Vector(-76, 159, 0)),  # 7
    Part.LineSegment(Vector(-76, 159, 0), Vector(-108, 159, 0)),  # 8
    Part.LineSegment(Vector(-108, 159, 0), Vector(-108, 203, 0)),  # 9
    Part.LineSegment(Vector(-108, 203, 0), Vector(-146, 203, 0)),  # 10
    Part.LineSegment(Vector(-146, 203, 0), Vector(-146, 159, 0)),  # 11
    Part.LineSegment(Vector(-146, 159, 0), Vector(-178, 159, 0)),  # 12
    Part.LineSegment(Vector(-178, 159, 0), Vector(-178, 121, 0)),  # 13
    Part.LineSegment(Vector(-178, 121, 0), Vector(0, 121, 0)),  # 14
    Part.LineSegment(Vector(0, 121, 0), Vector(0, -121, 0)),  # 15
    Part.LineSegment(Vector(0, -121, 0), Vector(-178, -121, 0)),  # 16
    Part.LineSegment(Vector(-178, -121, 0), Vector(-178, -159, 0)),  # 17
    Part.LineSegment(Vector(-178, -159, 0), Vector(-146, -159, 0)),  # 18
    Part.LineSegment(Vector(-146, -159, 0), Vector(-146, -203, 0)),  # 19
    Part.LineSegment(Vector(-146, -203, 0), Vector(-108, -203, 0)),  # 20
    Part.LineSegment(Vector(-108, -203, 0), Vector(-108, -159, 0)),  # 21
    Part.LineSegment(Vector(-108, -159, 0), Vector(-76, -159, 0)),  # 22
    Part.LineSegment(Vector(-76, -159, 0), Vector(-76, -127, 0)),  # 23
    Part.LineSegment(Vector(-76, -127, 0), Vector(-51, -127, 0)),  # 24
    Part.LineSegment(Vector(-51, -127, 0), Vector(-51, -159, 0)),  # 25
    Part.LineSegment(Vector(-51, -159, 0), Vector(-19, -159, 0)),  # 26
    Part.LineSegment(Vector(-19, -159, 0), Vector(-19, -203, 0)),  # 27
    Part.LineSegment(Vector(-19, -203, 0), Vector(0, -203, 0)),  # 28
    Part.LineSegment(Vector(0, -203, 0), Vector(0, -279, 0)),  # 29
    Part.LineSegment(Vector(0, -279, 0), Vector(-19, -279, 0)),  # 30
    Part.LineSegment(Vector(-19, -279, 0), Vector(-19, -324, 0)),  # 31
    Part.LineSegment(Vector(-19, -324, 0), Vector(-51, -324, 0)),  # 32
    Part.LineSegment(Vector(-51, -324, 0), Vector(-51, -356, 0)),  # 33
    Part.LineSegment(Vector(-51, -356, 0), Vector(-76, -356, 0)),  # 34
    Part.LineSegment(Vector(-76, -356, 0), Vector(-76, -324, 0)),  # 35
    Part.LineSegment(Vector(-76, -324, 0), Vector(-108, -324, 0)),  # 36
    Part.LineSegment(Vector(-108, -324, 0), Vector(-108, -279, 0)),  # 37
    Part.LineSegment(Vector(-108, -279, 0), Vector(-146, -279, 0)),  # 38
    Part.LineSegment(Vector(-146, -279, 0), Vector(-146, -324, 0)),  # 39
    Part.LineSegment(Vector(-146, -324, 0), Vector(-178, -324, 0)),  # 40
    Part.LineSegment(Vector(-178, -324, 0), Vector(-178, -356, 0)),  # 41
    Part.LineSegment(Vector(-178, -356, 0), Vector(-210, -356, 0)),  # 42
    Part.LineSegment(Vector(-210, -356, 0), Vector(-210, -273, 0)),  # 43
    Part.ArcOfCircle(Part.Circle(Vector(-273, -273, 0), Vector(0, 0, 1), 64), math.radians(0), math.radians(90)),  # 44
    Part.LineSegment(Vector(-273, -210, 0), Vector(-356, -210, 0)),  # 45
    Part.LineSegment(Vector(-356, -210, 0), Vector(-356, -190, 0)),  # 46
    Part.LineSegment(Vector(-356, -190, 0), Vector(-324, -190, 0)),  # 47
    Part.LineSegment(Vector(-324, -190, 0), Vector(-324, -159, 0)),  # 48
    Part.LineSegment(Vector(-324, -159, 0), Vector(-279, -159, 0)),  # 49
    Part.LineSegment(Vector(-279, -159, 0), Vector(-279, -121, 0)),  # 50
    Part.LineSegment(Vector(-279, -121, 0), Vector(-324, -121, 0)),  # 51
    Part.LineSegment(Vector(-324, -121, 0), Vector(-324, -89, 0)),  # 52
    Part.LineSegment(Vector(-324, -89, 0), Vector(-356, -89, 0)),  # 53
    Part.LineSegment(Vector(-356, -89, 0), Vector(-356, 89, 0)),  # 54
    Part.LineSegment(Vector(-356, 89, 0), Vector(-324, 89, 0)),  # 55
    Part.LineSegment(Vector(-324, 89, 0), Vector(-324, 121, 0)),  # 56
    Part.LineSegment(Vector(-324, 121, 0), Vector(-279, 121, 0)),  # 57
    Part.LineSegment(Vector(-279, 121, 0), Vector(-279, 159, 0)),  # 58
    Part.LineSegment(Vector(-279, 159, 0), Vector(-324, 159, 0)),  # 59
    Part.LineSegment(Vector(-324, 159, 0), Vector(-324, 190, 0)),  # 60
    Part.LineSegment(Vector(-324, 190, 0), Vector(-356, 190, 0)),  # 61
    Part.LineSegment(Vector(-356, 190, 0), Vector(-356, 210, 0)),  # 62
    Part.LineSegment(Vector(-356, 210, 0), Vector(-273, 210, 0)),  # 63
    Part.ArcOfCircle(Part.Circle(Vector(-273, 273, 0), Vector(0, 0, 1), 64), math.radians(-90), math.radians(0)),  # 64
    Part.LineSegment(Vector(-210, 273, 0), Vector(-210, 356, 0)),  # 65
    Part.LineSegment(Vector(-210, 356, 0), Vector(-178, 356, 0)),  # 66
    Part.LineSegment(Vector(-178, 356, 0), Vector(-178, 324, 0)),  # 67
    Part.LineSegment(Vector(-178, 324, 0), Vector(-146, 324, 0)),  # 68
    Part.LineSegment(Vector(-146, 324, 0), Vector(-146, 279, 0)),  # 69
    Part.LineSegment(Vector(-146, 279, 0), Vector(-108, 279, 0)),  # 70
    Part.LineSegment(Vector(-108, 279, 0), Vector(-108, 324, 0)),  # 71
    Part.LineSegment(Vector(-108, 324, 0), Vector(-76, 324, 0)),  # 72
    Part.LineSegment(Vector(-76, 324, 0), Vector(-76, 356, 0)),  # 73
    Part.LineSegment(Vector(-76, 356, 0), Vector(-51, 356, 0)),  # 74
    Part.LineSegment(Vector(-51, 356, 0), Vector(-51, 324, 0)),  # 75
    Part.LineSegment(Vector(-51, 324, 0), Vector(-19, 324, 0)),  # 76
    Part.LineSegment(Vector(-19, 324, 0), Vector(-19, 279, 0)),  # 77
], False)
sketch9.addConstraint([
    Sketcher.Constraint("Coincident", 0, 2, 1, 1),
    Sketcher.Constraint("Coincident", 1, 2, 2, 1),
    Sketcher.Constraint("Coincident", 2, 2, 3, 1),
    Sketcher.Constraint("Coincident", 3, 2, 4, 1),
    Sketcher.Constraint("Coincident", 4, 2, 5, 1),
    Sketcher.Constraint("Coincident", 5, 2, 6, 1),
    Sketcher.Constraint("Coincident", 6, 2, 7, 1),
    Sketcher.Constraint("Coincident", 7, 2, 8, 1),
    Sketcher.Constraint("Coincident", 8, 2, 9, 1),
    Sketcher.Constraint("Coincident", 9, 2, 10, 1),
    Sketcher.Constraint("Coincident", 10, 2, 11, 1),
    Sketcher.Constraint("Coincident", 11, 2, 12, 1),
    Sketcher.Constraint("Coincident", 12, 2, 13, 1),
    Sketcher.Constraint("Coincident", 13, 2, 14, 1),
    Sketcher.Constraint("Coincident", 14, 2, 15, 1),
    Sketcher.Constraint("Coincident", 15, 2, 16, 1),
    Sketcher.Constraint("Coincident", 16, 2, 17, 1),
    Sketcher.Constraint("Coincident", 17, 2, 18, 1),
    Sketcher.Constraint("Coincident", 18, 2, 19, 1),
    Sketcher.Constraint("Coincident", 19, 2, 20, 1),
    Sketcher.Constraint("Coincident", 20, 2, 21, 1),
    Sketcher.Constraint("Coincident", 21, 2, 22, 1),
    Sketcher.Constraint("Coincident", 22, 2, 23, 1),
    Sketcher.Constraint("Coincident", 23, 2, 24, 1),
    Sketcher.Constraint("Coincident", 24, 2, 25, 1),
    Sketcher.Constraint("Coincident", 25, 2, 26, 1),
    Sketcher.Constraint("Coincident", 26, 2, 27, 1),
    Sketcher.Constraint("Coincident", 27, 2, 28, 1),
    Sketcher.Constraint("Coincident", 28, 2, 29, 1),
    Sketcher.Constraint("Coincident", 29, 2, 30, 1),
    Sketcher.Constraint("Coincident", 30, 2, 31, 1),
    Sketcher.Constraint("Coincident", 31, 2, 32, 1),
    Sketcher.Constraint("Coincident", 32, 2, 33, 1),
    Sketcher.Constraint("Coincident", 33, 2, 34, 1),
    Sketcher.Constraint("Coincident", 34, 2, 35, 1),
    Sketcher.Constraint("Coincident", 35, 2, 36, 1),
    Sketcher.Constraint("Coincident", 36, 2, 37, 1),
    Sketcher.Constraint("Coincident", 37, 2, 38, 1),
    Sketcher.Constraint("Coincident", 38, 2, 39, 1),
    Sketcher.Constraint("Coincident", 39, 2, 40, 1),
    Sketcher.Constraint("Coincident", 40, 2, 41, 1),
    Sketcher.Constraint("Coincident", 41, 2, 42, 1),
    Sketcher.Constraint("Coincident", 42, 2, 43, 1),
    Sketcher.Constraint("Tangent", 43, 2, 44, 1),
    Sketcher.Constraint("Tangent", 44, 2, 45, 1),
    Sketcher.Constraint("Coincident", 45, 2, 46, 1),
    Sketcher.Constraint("Coincident", 46, 2, 47, 1),
    Sketcher.Constraint("Coincident", 47, 2, 48, 1),
    Sketcher.Constraint("Coincident", 48, 2, 49, 1),
    Sketcher.Constraint("Coincident", 49, 2, 50, 1),
    Sketcher.Constraint("Coincident", 50, 2, 51, 1),
    Sketcher.Constraint("Coincident", 51, 2, 52, 1),
    Sketcher.Constraint("Coincident", 52, 2, 53, 1),
    Sketcher.Constraint("Coincident", 53, 2, 54, 1),
    Sketcher.Constraint("Coincident", 54, 2, 55, 1),
    Sketcher.Constraint("Coincident", 55, 2, 56, 1),
    Sketcher.Constraint("Coincident", 56, 2, 57, 1),
    Sketcher.Constraint("Coincident", 57, 2, 58, 1),
    Sketcher.Constraint("Coincident", 58, 2, 59, 1),
    Sketcher.Constraint("Coincident", 59, 2, 60, 1),
    Sketcher.Constraint("Coincident", 60, 2, 61, 1),
    Sketcher.Constraint("Coincident", 61, 2, 62, 1),
    Sketcher.Constraint("Coincident", 62, 2, 63, 1),
    Sketcher.Constraint("Tangent", 63, 2, 64, 1),
    Sketcher.Constraint("Tangent", 64, 2, 65, 1),
    Sketcher.Constraint("Coincident", 65, 2, 66, 1),
    Sketcher.Constraint("Coincident", 66, 2, 67, 1),
    Sketcher.Constraint("Coincident", 67, 2, 68, 1),
    Sketcher.Constraint("Coincident", 68, 2, 69, 1),
    Sketcher.Constraint("Coincident", 69, 2, 70, 1),
    Sketcher.Constraint("Coincident", 70, 2, 71, 1),
    Sketcher.Constraint("Coincident", 71, 2, 72, 1),
    Sketcher.Constraint("Coincident", 72, 2, 73, 1),
    Sketcher.Constraint("Coincident", 73, 2, 74, 1),
    Sketcher.Constraint("Coincident", 74, 2, 75, 1),
    Sketcher.Constraint("Coincident", 75, 2, 76, 1),
    Sketcher.Constraint("Coincident", 76, 2, 77, 1),
    Sketcher.Constraint("Coincident", 77, 2, 0, 1),
    Sketcher.Constraint("Horizontal", 0),
    Sketcher.Constraint("Vertical", 1),
    Sketcher.Constraint("Horizontal", 2),
    Sketcher.Constraint("Vertical", 3),
    Sketcher.Constraint("Horizontal", 4),
    Sketcher.Constraint("Vertical", 5),
    Sketcher.Constraint("Horizontal", 6),
    Sketcher.Constraint("Vertical", 7),
    Sketcher.Constraint("Horizontal", 8),
    Sketcher.Constraint("Vertical", 9),
    Sketcher.Constraint("Horizontal", 10),
    Sketcher.Constraint("Vertical", 11),
    Sketcher.Constraint("Horizontal", 12),
    Sketcher.Constraint("Vertical", 13),
    Sketcher.Constraint("Horizontal", 14),
    Sketcher.Constraint("Vertical", 15),
    Sketcher.Constraint("Horizontal", 16),
    Sketcher.Constraint("Vertical", 17),
    Sketcher.Constraint("Horizontal", 18),
    Sketcher.Constraint("Vertical", 19),
    Sketcher.Constraint("Horizontal", 20),
    Sketcher.Constraint("Vertical", 21),
    Sketcher.Constraint("Horizontal", 22),
    Sketcher.Constraint("Vertical", 23),
    Sketcher.Constraint("Horizontal", 24),
    Sketcher.Constraint("Vertical", 25),
    Sketcher.Constraint("Horizontal", 26),
    Sketcher.Constraint("Vertical", 27),
    Sketcher.Constraint("Horizontal", 28),
    Sketcher.Constraint("Vertical", 29),
    Sketcher.Constraint("Horizontal", 30),
    Sketcher.Constraint("Vertical", 31),
    Sketcher.Constraint("Horizontal", 32),
    Sketcher.Constraint("Vertical", 33),
    Sketcher.Constraint("Horizontal", 34),
    Sketcher.Constraint("Vertical", 35),
    Sketcher.Constraint("Horizontal", 36),
    Sketcher.Constraint("Vertical", 37),
    Sketcher.Constraint("Horizontal", 38),
    Sketcher.Constraint("Vertical", 39),
    Sketcher.Constraint("Horizontal", 40),
    Sketcher.Constraint("Vertical", 41),
    Sketcher.Constraint("Horizontal", 42),
    Sketcher.Constraint("Vertical", 43),
    Sketcher.Constraint("Horizontal", 45),
    Sketcher.Constraint("Vertical", 46),
    Sketcher.Constraint("Horizontal", 47),
    Sketcher.Constraint("Vertical", 48),
    Sketcher.Constraint("Horizontal", 49),
    Sketcher.Constraint("Vertical", 50),
    Sketcher.Constraint("Horizontal", 51),
    Sketcher.Constraint("Vertical", 52),
    Sketcher.Constraint("Horizontal", 53),
    Sketcher.Constraint("Vertical", 54),
    Sketcher.Constraint("Horizontal", 55),
    Sketcher.Constraint("Vertical", 56),
    Sketcher.Constraint("Horizontal", 57),
    Sketcher.Constraint("Vertical", 58),
    Sketcher.Constraint("Horizontal", 59),
    Sketcher.Constraint("Vertical", 60),
    Sketcher.Constraint("Horizontal", 61),
    Sketcher.Constraint("Vertical", 62),
    Sketcher.Constraint("Horizontal", 63),
    Sketcher.Constraint("Vertical", 65),
    Sketcher.Constraint("Horizontal", 66),
    Sketcher.Constraint("Vertical", 67),
    Sketcher.Constraint("Horizontal", 68),
    Sketcher.Constraint("Vertical", 69),
    Sketcher.Constraint("Horizontal", 70),
    Sketcher.Constraint("Vertical", 71),
    Sketcher.Constraint("Horizontal", 72),
    Sketcher.Constraint("Vertical", 73),
    Sketcher.Constraint("Horizontal", 74),
    Sketcher.Constraint("Vertical", 75),
    Sketcher.Constraint("Horizontal", 76),
    Sketcher.Constraint("Vertical", 77),
    Sketcher.Constraint("Equal", 44, 64),
    Sketcher.Constraint("Symmetric", 14, 2, 15, 2, -1, 1),
    Sketcher.Constraint("Symmetric", 1, 2, 28, 2, -1, 1),
    Sketcher.Constraint("Symmetric", 44, 3, 64, 3, -1),
    Sketcher.Constraint("Symmetric", 12, 2, 17, 2, -1),
    Sketcher.Constraint("Symmetric", 10, 2, 19, 2, -1),
    Sketcher.Constraint("Symmetric", 8, 2, 21, 2, -1),
    Sketcher.Constraint("Symmetric", 6, 2, 23, 2, -1),
    Sketcher.Constraint("Symmetric", 4, 2, 25, 2, -1),
    Sketcher.Constraint("Symmetric", 0, 2, 29, 2, -1),
    Sketcher.Constraint("Symmetric", 52, 2, 55, 2, -1),
    Sketcher.Constraint("Symmetric", 50, 2, 57, 2, -1),
    Sketcher.Constraint("Symmetric", 48, 2, 59, 2, -1),
    Sketcher.Constraint("Symmetric", 46, 2, 61, 2, -1),
    Sketcher.Constraint("Symmetric", 41, 2, 66, 2, -1),
    Sketcher.Constraint("Symmetric", 39, 2, 68, 2, -1),
    Sketcher.Constraint("Symmetric", 37, 2, 70, 2, -1),
    Sketcher.Constraint("Symmetric", 35, 2, 72, 2, -1),
    Sketcher.Constraint("Symmetric", 33, 2, 74, 2, -1),
    Sketcher.Constraint("Symmetric", 31, 2, 76, 2, -1),
    Sketcher.Constraint("Horizontal", 4, 2, 7, 2),
    Sketcher.Constraint("Horizontal", 2, 2, 9, 2),
    Sketcher.Constraint("Horizontal", 8, 2, 11, 2),
    Sketcher.Constraint("Horizontal", 32, 2, 35, 2),
    Sketcher.Constraint("Horizontal", 30, 2, 37, 2),
    Sketcher.Constraint("Horizontal", 36, 2, 39, 2),
    Sketcher.Constraint("Horizontal", 34, 2, 41, 2),
    Sketcher.Constraint("Horizontal", 26, 2, 48, 2),
    Sketcher.Constraint("Horizontal", 16, 2, 50, 2),
    Sketcher.Constraint("Vertical", 3, 2, 26, 2),
    Sketcher.Constraint("Vertical", 27, 2, 30, 2),
    Sketcher.Constraint("Vertical", 25, 2, 32, 2),
    Sketcher.Constraint("Vertical", 23, 2, 34, 2),
    Sketcher.Constraint("Vertical", 21, 2, 36, 2),
    Sketcher.Constraint("Vertical", 19, 2, 38, 2),
    Sketcher.Constraint("Vertical", 17, 2, 40, 2),
    Sketcher.Constraint("Vertical", 48, 2, 51, 2),
    Sketcher.Constraint("Vertical", 46, 2, 53, 2),
    Sketcher.Constraint("Equal", 4, 8),
    Sketcher.Constraint("Equal", 8, 12),
    Sketcher.Constraint("Equal", 40, 42),
    Sketcher.Constraint("Equal", 42, 47),
    Sketcher.Constraint("Equal", 59, 3),
    Sketcher.Constraint("Equal", 76, 5),
    Sketcher.Constraint("Equal", 70, 13),
    Sketcher.Constraint("Equal", 27, 31),
    Sketcher.Constraint("Equal", 25, 33),
    Sketcher.Constraint("Equal", 63, 43),
    Sketcher.Constraint("Equal", 30, 46),
    Sketcher.Constraint("Equal", 41, 48),
    Sketcher.Constraint("Equal", 48, 52),
    Sketcher.Constraint("Equal", 16, 54),
    Sketcher.Constraint("Radius", 44, Q("2.5 in")),
    Sketcher.Constraint("DistanceX", 6, 2, 6, 1, Q("1 in")),
    Sketcher.Constraint("DistanceX", 14, 1, 14, 2, Q("7 in")),
    Sketcher.Constraint("DistanceY", 1, 2, 1, 1, Q("3 in")),
    Sketcher.Constraint("DistanceX", 10, 2, 10, 1, Q("1.5 in")),
    Sketcher.Constraint("DistanceY", 15, 2, 15, 1, Q("9.5 in")),
    Sketcher.Constraint("DistanceY", -1, 1, 0, 2, Q("11 in")),
])
pocket8 = body.newObject("PartDesign::Pocket", "Pocket007")
pocket8.Profile = sketch9
pocket8.Length = Q("3.125 in")
pocket8.Reversed = True

doc.recompute()
